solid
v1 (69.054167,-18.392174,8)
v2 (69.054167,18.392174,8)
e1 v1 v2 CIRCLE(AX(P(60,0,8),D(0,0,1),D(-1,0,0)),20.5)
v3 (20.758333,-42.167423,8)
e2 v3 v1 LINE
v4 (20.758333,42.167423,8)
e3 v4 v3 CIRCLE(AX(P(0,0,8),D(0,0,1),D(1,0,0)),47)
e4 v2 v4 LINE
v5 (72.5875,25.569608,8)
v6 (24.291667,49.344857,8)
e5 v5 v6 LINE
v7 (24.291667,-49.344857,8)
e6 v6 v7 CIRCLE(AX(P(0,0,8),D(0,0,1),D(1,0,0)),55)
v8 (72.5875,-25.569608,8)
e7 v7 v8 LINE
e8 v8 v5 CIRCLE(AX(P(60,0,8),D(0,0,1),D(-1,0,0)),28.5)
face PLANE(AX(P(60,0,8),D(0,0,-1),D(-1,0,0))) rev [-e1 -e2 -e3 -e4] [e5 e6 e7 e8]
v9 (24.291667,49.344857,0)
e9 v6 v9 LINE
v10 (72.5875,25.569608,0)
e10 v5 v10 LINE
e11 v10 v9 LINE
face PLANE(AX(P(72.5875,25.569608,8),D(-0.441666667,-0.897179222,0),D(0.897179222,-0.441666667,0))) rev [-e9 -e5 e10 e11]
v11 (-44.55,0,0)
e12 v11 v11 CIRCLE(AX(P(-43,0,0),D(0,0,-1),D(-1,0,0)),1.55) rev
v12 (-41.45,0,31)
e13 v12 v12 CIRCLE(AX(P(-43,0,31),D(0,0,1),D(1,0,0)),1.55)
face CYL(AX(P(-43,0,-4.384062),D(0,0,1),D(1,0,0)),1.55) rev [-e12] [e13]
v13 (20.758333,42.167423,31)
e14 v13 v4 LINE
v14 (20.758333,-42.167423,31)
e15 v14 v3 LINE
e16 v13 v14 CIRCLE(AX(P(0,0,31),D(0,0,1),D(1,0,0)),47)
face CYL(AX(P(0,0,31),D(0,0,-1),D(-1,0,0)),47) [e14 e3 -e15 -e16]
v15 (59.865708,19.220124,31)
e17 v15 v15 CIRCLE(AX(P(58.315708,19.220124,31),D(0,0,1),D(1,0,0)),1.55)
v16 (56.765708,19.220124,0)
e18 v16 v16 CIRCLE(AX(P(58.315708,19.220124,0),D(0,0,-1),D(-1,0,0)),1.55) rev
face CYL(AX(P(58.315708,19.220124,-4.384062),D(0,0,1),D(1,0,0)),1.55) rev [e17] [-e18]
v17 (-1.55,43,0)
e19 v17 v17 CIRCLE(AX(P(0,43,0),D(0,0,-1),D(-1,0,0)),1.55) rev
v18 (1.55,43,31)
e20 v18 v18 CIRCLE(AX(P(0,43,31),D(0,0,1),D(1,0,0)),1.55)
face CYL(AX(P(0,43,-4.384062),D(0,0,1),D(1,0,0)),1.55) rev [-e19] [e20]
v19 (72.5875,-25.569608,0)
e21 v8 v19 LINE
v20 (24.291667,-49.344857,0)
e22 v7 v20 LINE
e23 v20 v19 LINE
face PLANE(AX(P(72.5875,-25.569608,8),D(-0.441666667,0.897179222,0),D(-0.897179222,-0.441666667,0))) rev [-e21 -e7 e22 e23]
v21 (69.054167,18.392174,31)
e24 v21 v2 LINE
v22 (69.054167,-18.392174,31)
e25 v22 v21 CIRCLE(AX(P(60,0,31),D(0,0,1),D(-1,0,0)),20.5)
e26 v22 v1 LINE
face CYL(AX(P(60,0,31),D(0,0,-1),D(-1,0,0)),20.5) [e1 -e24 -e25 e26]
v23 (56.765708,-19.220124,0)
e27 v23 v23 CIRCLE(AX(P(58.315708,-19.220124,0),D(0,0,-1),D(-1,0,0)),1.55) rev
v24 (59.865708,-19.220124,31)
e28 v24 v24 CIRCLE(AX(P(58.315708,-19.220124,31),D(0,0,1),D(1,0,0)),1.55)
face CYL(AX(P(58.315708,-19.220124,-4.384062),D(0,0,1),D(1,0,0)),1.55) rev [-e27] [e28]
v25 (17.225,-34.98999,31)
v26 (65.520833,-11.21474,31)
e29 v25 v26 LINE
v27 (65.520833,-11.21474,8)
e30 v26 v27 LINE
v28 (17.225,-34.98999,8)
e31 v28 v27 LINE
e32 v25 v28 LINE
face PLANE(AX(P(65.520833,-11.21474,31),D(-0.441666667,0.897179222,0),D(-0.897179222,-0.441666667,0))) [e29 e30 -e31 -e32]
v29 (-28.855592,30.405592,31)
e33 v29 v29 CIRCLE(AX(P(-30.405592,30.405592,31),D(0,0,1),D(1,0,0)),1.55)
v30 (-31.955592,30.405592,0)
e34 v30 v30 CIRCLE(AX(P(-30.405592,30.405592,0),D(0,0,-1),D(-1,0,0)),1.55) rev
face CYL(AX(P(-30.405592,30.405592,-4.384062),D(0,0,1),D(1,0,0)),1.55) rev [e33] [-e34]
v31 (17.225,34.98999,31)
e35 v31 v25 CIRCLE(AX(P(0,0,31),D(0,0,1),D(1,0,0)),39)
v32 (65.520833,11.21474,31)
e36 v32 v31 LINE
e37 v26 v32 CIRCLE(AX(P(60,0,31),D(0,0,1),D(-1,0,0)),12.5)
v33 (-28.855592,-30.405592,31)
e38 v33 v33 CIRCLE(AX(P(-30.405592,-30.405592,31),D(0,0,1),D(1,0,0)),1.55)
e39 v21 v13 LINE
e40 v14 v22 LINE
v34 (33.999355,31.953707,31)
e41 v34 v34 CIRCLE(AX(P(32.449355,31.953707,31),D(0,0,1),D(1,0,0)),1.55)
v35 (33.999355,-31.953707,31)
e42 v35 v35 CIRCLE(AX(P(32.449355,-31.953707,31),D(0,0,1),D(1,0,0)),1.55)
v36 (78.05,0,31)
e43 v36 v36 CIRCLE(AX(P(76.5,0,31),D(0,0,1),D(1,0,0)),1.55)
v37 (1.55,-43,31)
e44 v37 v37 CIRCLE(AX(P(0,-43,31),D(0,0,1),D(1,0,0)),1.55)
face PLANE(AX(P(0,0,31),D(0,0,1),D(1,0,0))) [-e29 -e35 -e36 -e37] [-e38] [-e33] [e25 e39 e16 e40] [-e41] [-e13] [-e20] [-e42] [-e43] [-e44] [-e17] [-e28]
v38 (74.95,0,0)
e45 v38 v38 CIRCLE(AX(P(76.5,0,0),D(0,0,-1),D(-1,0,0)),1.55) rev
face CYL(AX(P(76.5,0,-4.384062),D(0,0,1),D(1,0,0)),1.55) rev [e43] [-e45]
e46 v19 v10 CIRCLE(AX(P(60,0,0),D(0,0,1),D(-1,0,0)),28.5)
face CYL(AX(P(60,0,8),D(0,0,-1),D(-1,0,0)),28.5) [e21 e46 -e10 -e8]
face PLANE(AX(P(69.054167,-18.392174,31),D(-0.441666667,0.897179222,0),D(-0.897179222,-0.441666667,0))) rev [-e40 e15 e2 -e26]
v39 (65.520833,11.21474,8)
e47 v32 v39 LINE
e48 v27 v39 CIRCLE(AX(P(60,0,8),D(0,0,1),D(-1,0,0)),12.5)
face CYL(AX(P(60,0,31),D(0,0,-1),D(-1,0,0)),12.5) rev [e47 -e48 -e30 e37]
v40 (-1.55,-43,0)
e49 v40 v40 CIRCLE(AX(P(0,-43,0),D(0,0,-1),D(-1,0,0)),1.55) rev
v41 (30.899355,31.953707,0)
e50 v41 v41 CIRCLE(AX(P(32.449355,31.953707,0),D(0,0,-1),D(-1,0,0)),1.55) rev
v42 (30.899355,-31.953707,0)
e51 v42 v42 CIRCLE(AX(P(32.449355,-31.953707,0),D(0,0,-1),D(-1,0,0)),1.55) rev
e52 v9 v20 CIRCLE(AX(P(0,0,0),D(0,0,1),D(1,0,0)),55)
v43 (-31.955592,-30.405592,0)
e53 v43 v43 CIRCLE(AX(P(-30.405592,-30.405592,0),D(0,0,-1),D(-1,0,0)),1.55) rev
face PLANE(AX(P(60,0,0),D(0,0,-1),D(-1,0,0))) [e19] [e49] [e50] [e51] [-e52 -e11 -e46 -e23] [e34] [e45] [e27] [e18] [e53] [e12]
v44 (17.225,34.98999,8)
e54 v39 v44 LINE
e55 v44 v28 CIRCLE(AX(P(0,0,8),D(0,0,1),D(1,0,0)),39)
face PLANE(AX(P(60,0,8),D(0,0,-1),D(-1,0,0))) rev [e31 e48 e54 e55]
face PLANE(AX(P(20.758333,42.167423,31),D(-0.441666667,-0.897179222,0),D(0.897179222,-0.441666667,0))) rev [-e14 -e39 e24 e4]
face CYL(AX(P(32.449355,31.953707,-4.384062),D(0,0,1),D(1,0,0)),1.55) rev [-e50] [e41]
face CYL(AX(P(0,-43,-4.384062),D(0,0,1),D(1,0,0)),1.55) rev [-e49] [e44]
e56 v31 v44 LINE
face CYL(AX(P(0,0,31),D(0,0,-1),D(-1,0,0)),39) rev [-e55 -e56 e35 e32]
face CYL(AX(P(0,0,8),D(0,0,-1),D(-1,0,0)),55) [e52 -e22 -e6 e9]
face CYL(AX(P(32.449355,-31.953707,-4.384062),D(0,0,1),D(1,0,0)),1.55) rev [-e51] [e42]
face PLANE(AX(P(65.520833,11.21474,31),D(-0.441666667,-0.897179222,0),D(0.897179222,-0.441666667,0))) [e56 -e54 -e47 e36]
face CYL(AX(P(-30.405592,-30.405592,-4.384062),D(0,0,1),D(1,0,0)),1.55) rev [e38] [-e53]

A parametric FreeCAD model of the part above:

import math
import FreeCAD as App
import Part
import Sketcher
Q = App.Units.Quantity

doc = App.newDocument("Part")
body = doc.addObject("PartDesign::Body", "Body")

# Sketch on XY plane
sketch1 = body.newObject("Sketcher::SketchObject", "Sketch")
sketch1.AttachmentSupport = (doc.getObject("XY_Plane"), [""])
sketch1.MapMode = "FlatFace"
sketch1.addGeometry([
    Part.LineSegment(App.Vector(73, 26, 0), App.Vector(24, 49, 0)),
    Part.ArcOfCircle(Part.Circle(App.Vector(0, 0, 0), App.Vector(0, 0, 1), 55), math.radians(64), math.radians(296)),
    Part.LineSegment(App.Vector(24, -49, 0), App.Vector(73, -26, 0)),
    Part.ArcOfCircle(Part.Circle(App.Vector(60, 0, 0), App.Vector(0, 0, 1), 28), math.radians(-64), math.radians(64)),
], False)
sketch1.addConstraint([
    Sketcher.Constraint("Tangent", 0, 2, 1, 1),
    Sketcher.Constraint("Tangent", 1, 2, 2, 1),
    Sketcher.Constraint("Tangent", 2, 2, 3, 1),
    Sketcher.Constraint("Tangent", 3, 2, 0, 1),
    Sketcher.Constraint("Coincident", 1, 3, -1, 1),
    Sketcher.Constraint("PointOnObject", 3, 3, -1),
    Sketcher.Constraint("Radius", 1, Q("55 mm")),
    Sketcher.Constraint("Radius", 3, Q("28.5 mm")),
    Sketcher.Constraint("DistanceX", -1, 1, 3, 3, Q("60 mm")),
])
pad1 = body.newObject("PartDesign::Pad", "Pad")
pad1.Profile = sketch1
pad1.Length = 8

# Sketch on XY plane
sketch2 = body.newObject("Sketcher::SketchObject", "Sketch001")
sketch2.AttachmentSupport = (doc.getObject("XY_Plane"), [""])
sketch2.MapMode = "FlatFace"
sketch2.AttachmentOffset = App.Placement(App.Vector(0, 0, 8), App.Rotation())
sketch2.addGeometry([
    Part.LineSegment(App.Vector(69, 18, 0), App.Vector(21, 42, 0)),  # 0
    Part.ArcOfCircle(Part.Circle(App.Vector(0, 0, 0), App.Vector(0, 0, 1), 47), math.radians(64), math.radians(296)),  # 1
    Part.LineSegment(App.Vector(21, -42, 0), App.Vector(69, -18, 0)),  # 2
    Part.ArcOfCircle(Part.Circle(App.Vector(60, 0, 0), App.Vector(0, 0, 1), 20), math.radians(-64), math.radians(64)),  # 3
    Part.ArcOfCircle(Part.Circle(App.Vector(60, 0, 0), App.Vector(0, 0, 1), 12), math.radians(-64), math.radians(64)),  # 4
    Part.LineSegment(App.Vector(66, -11, 0), App.Vector(17, -35, 0)),  # 5
    Part.ArcOfCircle(Part.Circle(App.Vector(0, 0, 0), App.Vector(0, 0, 1), 39), math.radians(64), math.radians(296)),  # 6
    Part.LineSegment(App.Vector(17, 35, 0), App.Vector(66, 11, 0)),  # 7
], False)
sketch2.addConstraint([
    Sketcher.Constraint("Tangent", 0, 2, 1, 1),
    Sketcher.Constraint("Tangent", 1, 2, 2, 1),
    Sketcher.Constraint("Tangent", 2, 2, 3, 1),
    Sketcher.Constraint("Tangent", 3, 2, 0, 1),
    Sketcher.Constraint("Tangent", 4, 1, 5, 1),
    Sketcher.Constraint("Tangent", 5, 2, 6, 2),
    Sketcher.Constraint("Tangent", 6, 1, 7, 1),
    Sketcher.Constraint("Tangent", 7, 2, 4, 2),
    Sketcher.Constraint("Coincident", 1, 3, -1, 1),
    Sketcher.Constraint("Coincident", 6, 3, -1, 1),
    Sketcher.Constraint("Coincident", 4, 3, 3, 3),
    Sketcher.Constraint("PointOnObject", 3, 3, -1),
    Sketcher.Constraint("Parallel", 2, 5),
    Sketcher.Constraint("Radius", 1, Q("47 mm")),
    Sketcher.Constraint("Radius", 6, Q("39 mm")),
    Sketcher.Constraint("Radius", 3, Q("20.5 mm")),
    Sketcher.Constraint("DistanceX", -1, 1, 3, 3, Q("60 mm")),
])
pad2 = body.newObject("PartDesign::Pad", "Pad001")
pad2.Profile = sketch2
pad2.Length = 23

# Sketch on XY plane
sketch3 = body.newObject("Sketcher::SketchObject", "Sketch002")
sketch3.AttachmentSupport = (doc.getObject("XY_Plane"), [""])
sketch3.MapMode = "FlatFace"
sketch3.AttachmentOffset = App.Placement(App.Vector(0, 0, 31), App.Rotation())
sketch3.addGeometry([
    Part.Circle(App.Vector(0, 43, 0), App.Vector(0, 0, 1), 1.6),  # 0
    Part.Circle(App.Vector(-30.4, 30.4, 0), App.Vector(0, 0, 1), 1.6),  # 1
    Part.Circle(App.Vector(-43, 0, 0), App.Vector(0, 0, 1), 1.6),  # 2
    Part.Circle(App.Vector(-30.4, -30.4, 0), App.Vector(0, 0, 1), 1.6),  # 3
    Part.Circle(App.Vector(0, -43, 0), App.Vector(0, 0, 1), 1.6),  # 4
    Part.Circle(App.Vector(76.5, 0, 0), App.Vector(0, 0, 1), 1.6),  # 5
    Part.Circle(App.Vector(58.3, 19.2, 0), App.Vector(0, 0, 1), 1.6),  # 6
    Part.Circle(App.Vector(32.4, 32, 0), App.Vector(0, 0, 1), 1.6),  # 7
    Part.Circle(App.Vector(58.3, -19.2, 0), App.Vector(0, 0, 1), 1.6),  # 8
    Part.Circle(App.Vector(32.4, -32, 0), App.Vector(0, 0, 1), 1.6),  # 9
], False)
sketch3.addConstraint([
    Sketcher.Constraint("Equal", 0, 1),
    Sketcher.Constraint("Equal", 1, 2),
    Sketcher.Constraint("Equal", 2, 3),
    Sketcher.Constraint("Equal", 3, 4),
    Sketcher.Constraint("Equal", 4, 5),
    Sketcher.Constraint("Equal", 5, 6),
    Sketcher.Constraint("Equal", 6, 7),
    Sketcher.Constraint("Equal", 7, 8),
    Sketcher.Constraint("Equal", 8, 9),
    Sketcher.Constraint("Symmetric", 0, 3, 4, 3, -1, 1),
    Sketcher.Constraint("Symmetric", 1, 3, 3, 3, -1),
    Sketcher.Constraint("Symmetric", 6, 3, 8, 3, -1),
    Sketcher.Constraint("Symmetric", 7, 3, 9, 3, -1),
    Sketcher.Constraint("PointOnObject", 0, 3, -2),
    Sketcher.Constraint("PointOnObject", 2, 3, -1),
    Sketcher.Constraint("PointOnObject", 5, 3, -1),
    Sketcher.Constraint("Diameter", 0, Q("3.1 mm")),
    Sketcher.Constraint("DistanceY", -1, 1, 0, 3, Q("43 mm")),
    Sketcher.Constraint("DistanceX", 2, 3, -1, 1, Q("43 mm")),
    Sketcher.Constraint("DistanceX", -1, 1, 5, 3, Q("76.5 mm")),
    Sketcher.Constraint("DistanceX", 1, 3, 6, 3, Q("88.721299 mm")),
    Sketcher.Constraint("DistanceX", 1, 3, -1, 1, Q("30.405592 mm")),
    Sketcher.Constraint("DistanceY", -1, 1, 1, 3, Q("30.405592 mm")),
    Sketcher.Constraint("DistanceY", 8, 3, 7, 3, Q("51.17383 mm")),
    Sketcher.Constraint("DistanceY", -1, 1, 6, 3, Q("19.220124 mm")),
    Sketcher.Constraint("DistanceX", -1, 1, 7, 3, Q("32.449355 mm")),
])
pocket1 = body.newObject("PartDesign::Pocket", "Pocket")
pocket1.Profile = sketch3
pocket1.Length = 31

doc.recompute()
